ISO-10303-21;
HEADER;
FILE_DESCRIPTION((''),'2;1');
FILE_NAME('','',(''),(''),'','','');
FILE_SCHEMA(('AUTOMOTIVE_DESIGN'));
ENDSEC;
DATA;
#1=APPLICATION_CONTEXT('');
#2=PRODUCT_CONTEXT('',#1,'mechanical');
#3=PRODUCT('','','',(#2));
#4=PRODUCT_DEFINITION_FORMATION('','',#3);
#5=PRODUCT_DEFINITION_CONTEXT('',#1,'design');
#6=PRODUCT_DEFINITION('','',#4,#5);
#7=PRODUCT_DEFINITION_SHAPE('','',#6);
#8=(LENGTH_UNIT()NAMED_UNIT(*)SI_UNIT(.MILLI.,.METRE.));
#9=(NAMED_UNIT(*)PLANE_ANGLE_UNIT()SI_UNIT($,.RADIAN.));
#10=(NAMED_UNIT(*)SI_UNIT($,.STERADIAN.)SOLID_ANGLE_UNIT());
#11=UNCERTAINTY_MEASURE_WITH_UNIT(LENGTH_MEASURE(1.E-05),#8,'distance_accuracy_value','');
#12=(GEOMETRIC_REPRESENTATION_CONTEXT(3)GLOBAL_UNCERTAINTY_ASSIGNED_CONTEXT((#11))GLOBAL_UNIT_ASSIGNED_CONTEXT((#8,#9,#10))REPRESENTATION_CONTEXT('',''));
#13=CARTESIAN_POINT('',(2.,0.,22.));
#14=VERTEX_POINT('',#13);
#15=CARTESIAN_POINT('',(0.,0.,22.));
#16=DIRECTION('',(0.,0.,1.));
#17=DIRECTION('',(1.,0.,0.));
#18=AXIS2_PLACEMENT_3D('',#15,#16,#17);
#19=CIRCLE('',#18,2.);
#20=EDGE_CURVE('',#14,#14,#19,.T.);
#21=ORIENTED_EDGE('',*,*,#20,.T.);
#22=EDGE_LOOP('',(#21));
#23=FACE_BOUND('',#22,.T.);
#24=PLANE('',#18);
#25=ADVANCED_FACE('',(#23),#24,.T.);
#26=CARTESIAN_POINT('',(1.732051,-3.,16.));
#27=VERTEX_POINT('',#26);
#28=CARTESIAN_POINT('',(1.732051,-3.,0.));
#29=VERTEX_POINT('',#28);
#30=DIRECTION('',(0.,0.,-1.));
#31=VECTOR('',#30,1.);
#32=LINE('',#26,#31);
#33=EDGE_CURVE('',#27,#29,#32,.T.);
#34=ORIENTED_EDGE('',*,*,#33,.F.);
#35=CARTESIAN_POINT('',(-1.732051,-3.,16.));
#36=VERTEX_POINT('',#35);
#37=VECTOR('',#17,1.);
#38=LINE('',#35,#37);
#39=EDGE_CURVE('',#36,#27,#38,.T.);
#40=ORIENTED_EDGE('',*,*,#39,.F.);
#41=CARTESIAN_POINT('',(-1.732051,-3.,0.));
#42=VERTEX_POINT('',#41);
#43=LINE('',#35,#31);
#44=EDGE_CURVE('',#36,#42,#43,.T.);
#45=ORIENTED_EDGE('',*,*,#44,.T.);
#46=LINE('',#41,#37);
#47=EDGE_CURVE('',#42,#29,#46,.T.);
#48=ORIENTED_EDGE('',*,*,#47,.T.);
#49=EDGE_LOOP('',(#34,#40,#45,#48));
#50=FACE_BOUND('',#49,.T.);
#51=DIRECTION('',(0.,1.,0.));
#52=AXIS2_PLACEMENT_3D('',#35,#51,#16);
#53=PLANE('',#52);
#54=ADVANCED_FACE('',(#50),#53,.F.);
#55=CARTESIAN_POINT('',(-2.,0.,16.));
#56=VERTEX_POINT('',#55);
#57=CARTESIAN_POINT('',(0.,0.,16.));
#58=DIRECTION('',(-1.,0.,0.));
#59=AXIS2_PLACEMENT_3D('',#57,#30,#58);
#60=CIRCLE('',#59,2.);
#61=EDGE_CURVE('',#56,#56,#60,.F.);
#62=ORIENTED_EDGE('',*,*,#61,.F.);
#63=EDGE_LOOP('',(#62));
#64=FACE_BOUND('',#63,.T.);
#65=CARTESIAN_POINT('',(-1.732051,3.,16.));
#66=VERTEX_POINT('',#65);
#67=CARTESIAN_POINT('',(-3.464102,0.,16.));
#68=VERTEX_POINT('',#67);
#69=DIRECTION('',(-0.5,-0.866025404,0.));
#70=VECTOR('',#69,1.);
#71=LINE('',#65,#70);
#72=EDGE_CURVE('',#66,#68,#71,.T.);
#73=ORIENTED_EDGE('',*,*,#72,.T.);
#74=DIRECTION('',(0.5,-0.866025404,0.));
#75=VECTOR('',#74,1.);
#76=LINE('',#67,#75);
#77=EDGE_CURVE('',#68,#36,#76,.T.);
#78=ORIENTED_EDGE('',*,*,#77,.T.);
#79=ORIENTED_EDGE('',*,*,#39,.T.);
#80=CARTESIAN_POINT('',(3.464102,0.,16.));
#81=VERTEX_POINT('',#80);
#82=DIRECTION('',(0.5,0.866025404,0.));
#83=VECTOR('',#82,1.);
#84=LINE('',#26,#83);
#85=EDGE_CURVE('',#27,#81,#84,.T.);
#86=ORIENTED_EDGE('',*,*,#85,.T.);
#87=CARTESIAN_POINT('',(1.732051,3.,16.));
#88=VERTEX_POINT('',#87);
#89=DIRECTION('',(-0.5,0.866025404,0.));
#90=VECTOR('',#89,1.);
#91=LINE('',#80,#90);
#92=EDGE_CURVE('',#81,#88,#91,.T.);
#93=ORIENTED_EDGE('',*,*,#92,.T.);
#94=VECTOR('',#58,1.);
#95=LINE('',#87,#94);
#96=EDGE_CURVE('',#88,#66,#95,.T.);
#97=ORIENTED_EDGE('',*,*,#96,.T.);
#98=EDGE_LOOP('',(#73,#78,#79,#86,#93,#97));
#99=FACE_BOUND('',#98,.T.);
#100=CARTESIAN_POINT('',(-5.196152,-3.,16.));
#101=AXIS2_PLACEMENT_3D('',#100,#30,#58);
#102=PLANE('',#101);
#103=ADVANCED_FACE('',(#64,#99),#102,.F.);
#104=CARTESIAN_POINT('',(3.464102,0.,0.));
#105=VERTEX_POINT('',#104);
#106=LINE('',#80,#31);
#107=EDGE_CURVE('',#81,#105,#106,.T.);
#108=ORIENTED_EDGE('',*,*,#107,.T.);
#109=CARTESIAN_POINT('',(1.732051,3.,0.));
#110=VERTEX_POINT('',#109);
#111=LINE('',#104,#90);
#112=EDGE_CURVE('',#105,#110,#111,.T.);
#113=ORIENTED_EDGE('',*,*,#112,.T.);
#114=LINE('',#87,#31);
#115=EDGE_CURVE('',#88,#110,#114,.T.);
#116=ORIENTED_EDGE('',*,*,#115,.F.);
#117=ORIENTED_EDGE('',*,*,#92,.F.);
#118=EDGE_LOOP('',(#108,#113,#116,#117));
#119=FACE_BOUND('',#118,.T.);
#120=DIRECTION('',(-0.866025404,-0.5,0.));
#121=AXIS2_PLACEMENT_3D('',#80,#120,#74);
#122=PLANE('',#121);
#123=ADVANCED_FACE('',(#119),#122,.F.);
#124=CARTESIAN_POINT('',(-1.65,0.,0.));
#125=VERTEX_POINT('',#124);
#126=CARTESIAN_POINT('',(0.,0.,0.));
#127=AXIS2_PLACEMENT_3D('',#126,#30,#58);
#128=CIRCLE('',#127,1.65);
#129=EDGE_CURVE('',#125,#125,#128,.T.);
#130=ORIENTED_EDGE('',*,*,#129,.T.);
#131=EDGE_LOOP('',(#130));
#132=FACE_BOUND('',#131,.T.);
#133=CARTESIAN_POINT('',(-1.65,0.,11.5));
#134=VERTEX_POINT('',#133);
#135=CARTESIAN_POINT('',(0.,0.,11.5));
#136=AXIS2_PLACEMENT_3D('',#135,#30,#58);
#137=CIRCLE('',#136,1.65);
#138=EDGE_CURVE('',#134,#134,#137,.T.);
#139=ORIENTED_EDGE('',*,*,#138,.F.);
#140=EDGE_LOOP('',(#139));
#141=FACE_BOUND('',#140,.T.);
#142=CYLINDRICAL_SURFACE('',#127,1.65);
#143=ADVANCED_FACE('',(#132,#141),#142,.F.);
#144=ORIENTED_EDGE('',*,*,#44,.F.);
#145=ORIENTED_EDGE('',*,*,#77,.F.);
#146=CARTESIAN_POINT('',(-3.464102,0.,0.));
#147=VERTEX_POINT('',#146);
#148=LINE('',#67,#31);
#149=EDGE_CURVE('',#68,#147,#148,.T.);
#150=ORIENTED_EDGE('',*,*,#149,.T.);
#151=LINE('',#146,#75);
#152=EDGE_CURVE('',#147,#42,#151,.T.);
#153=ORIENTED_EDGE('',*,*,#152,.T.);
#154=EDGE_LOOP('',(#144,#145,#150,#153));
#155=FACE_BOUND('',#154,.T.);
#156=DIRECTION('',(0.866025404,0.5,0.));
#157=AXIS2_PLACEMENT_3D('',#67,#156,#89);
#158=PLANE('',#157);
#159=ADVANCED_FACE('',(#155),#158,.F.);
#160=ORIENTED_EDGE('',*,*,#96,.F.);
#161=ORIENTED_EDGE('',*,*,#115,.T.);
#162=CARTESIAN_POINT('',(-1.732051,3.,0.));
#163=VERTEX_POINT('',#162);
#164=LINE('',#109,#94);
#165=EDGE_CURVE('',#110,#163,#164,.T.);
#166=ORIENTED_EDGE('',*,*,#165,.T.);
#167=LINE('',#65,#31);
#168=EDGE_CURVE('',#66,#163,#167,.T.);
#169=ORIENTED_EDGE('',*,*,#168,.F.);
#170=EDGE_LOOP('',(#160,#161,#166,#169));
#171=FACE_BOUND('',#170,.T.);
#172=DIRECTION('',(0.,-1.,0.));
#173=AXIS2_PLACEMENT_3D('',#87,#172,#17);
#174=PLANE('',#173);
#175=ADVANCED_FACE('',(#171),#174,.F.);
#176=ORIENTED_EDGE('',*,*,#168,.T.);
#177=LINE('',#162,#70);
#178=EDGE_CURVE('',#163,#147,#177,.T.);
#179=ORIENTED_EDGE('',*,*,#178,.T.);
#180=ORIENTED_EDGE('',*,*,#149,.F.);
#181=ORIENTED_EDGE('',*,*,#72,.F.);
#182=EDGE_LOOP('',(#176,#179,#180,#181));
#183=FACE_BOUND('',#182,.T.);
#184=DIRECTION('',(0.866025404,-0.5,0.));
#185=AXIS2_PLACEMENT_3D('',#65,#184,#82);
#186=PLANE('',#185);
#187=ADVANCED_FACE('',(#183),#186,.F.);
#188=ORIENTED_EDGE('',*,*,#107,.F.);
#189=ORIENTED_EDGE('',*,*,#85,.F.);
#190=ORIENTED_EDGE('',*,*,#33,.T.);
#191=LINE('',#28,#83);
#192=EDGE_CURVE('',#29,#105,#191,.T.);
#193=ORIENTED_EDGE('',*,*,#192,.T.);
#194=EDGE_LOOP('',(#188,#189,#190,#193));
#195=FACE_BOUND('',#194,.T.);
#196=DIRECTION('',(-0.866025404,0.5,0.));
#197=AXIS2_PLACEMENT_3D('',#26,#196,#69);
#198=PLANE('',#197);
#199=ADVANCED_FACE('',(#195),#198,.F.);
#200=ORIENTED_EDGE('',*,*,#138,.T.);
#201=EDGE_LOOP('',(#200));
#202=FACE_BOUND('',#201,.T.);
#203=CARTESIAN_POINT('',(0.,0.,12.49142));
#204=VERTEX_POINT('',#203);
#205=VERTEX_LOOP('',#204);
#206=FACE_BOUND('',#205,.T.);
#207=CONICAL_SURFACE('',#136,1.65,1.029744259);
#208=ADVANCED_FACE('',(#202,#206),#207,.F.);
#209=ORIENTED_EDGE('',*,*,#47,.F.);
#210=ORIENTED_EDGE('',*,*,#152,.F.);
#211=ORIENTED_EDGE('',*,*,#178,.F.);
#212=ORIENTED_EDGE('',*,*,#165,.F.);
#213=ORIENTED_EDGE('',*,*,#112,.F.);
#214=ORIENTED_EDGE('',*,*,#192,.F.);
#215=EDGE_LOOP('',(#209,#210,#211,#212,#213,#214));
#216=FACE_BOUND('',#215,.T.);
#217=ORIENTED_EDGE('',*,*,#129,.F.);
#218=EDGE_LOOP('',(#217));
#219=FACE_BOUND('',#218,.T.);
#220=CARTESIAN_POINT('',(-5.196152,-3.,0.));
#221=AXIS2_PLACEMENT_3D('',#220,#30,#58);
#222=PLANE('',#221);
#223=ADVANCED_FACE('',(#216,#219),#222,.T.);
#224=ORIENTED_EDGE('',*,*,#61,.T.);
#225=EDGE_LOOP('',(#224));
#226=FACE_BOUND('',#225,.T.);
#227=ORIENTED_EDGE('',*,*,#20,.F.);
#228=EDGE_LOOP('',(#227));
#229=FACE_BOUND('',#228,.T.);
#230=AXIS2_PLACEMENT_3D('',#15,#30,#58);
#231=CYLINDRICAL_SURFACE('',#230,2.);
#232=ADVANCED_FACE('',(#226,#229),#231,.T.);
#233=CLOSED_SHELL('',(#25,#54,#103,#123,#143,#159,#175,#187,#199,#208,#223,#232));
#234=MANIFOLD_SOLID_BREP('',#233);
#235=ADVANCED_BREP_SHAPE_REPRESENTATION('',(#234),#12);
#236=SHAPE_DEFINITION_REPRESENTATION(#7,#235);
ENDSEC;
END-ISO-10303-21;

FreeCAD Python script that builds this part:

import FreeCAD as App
import Part
import Sketcher
from FreeCAD import Vector
Q = App.Units.Quantity


def add_polygon(sketch, points):
    """Adds a closed chain of lines whose ends are joined by coincident constraints."""
    first, n = sketch.GeometryCount, len(points)
    for a, b in zip(points, points[1:] + points[:1]):
        sketch.addGeometry(Part.LineSegment(App.Vector(*a, 0), App.Vector(*b, 0)), False)
    for i in range(n):
        sketch.addConstraint(Sketcher.Constraint("Coincident", first + i, 2, first + (i + 1) % n, 1))

doc = App.newDocument("Part")
body = doc.addObject("PartDesign::Body", "Body")

sketch1 = body.newObject("Sketcher::SketchObject", "Sketch")
sketch1.AttachmentSupport = (doc.getObject("XY_Plane"), [""])
sketch1.MapMode = "FlatFace"
add_polygon(sketch1, [(1.7, -3), (3.5, 0), (1.7, 3), (-1.7, 3), (-3.5, 0), (-1.7, -3)])
sketch1.addConstraint(Sketcher.Constraint("Horizontal", 2))
sketch1.addConstraint(Sketcher.Constraint("Horizontal", 5))
sketch1.addConstraint(Sketcher.Constraint("Symmetric", 0, 2, 3, 2, -1, 1))
sketch1.addConstraint(Sketcher.Constraint("Symmetric", 1, 2, 4, 2, -1, 1))
sketch1.addConstraint(Sketcher.Constraint("PointOnObject", 0, 2, -1))
sketch1.addConstraint(Sketcher.Constraint("Parallel", 0, 3))
sketch1.addConstraint(Sketcher.Constraint("Vertical", 2, 2, 4, 2))
sketch1.addConstraint(Sketcher.Constraint("Angle", 0, Q("60 deg")))
sketch1.addConstraint(Sketcher.Constraint("DistanceY", -1, 1, 1, 2, Q("3 mm")))
sketch1.addConstraint(Sketcher.Constraint("DistanceX", 2, 2, 2, 1, Q("3.464102 mm")))
pad1 = body.newObject("PartDesign::Pad", "Pad")
pad1.Profile = sketch1
pad1.Length = 16

sketch2 = body.newObject("Sketcher::SketchObject", "Sketch001")
sketch2.AttachmentSupport = (doc.getObject("XY_Plane"), [""])
sketch2.MapMode = "FlatFace"
sketch2.AttachmentOffset = App.Placement(Vector(0, 0, 16), App.Rotation())
sketch2.addGeometry(Part.Circle(Vector(0, 0, 0), Vector(0, 0, 1), 2), False)
sketch2.addConstraint(Sketcher.Constraint("Coincident", 0, 3, -1, 1))
sketch2.addConstraint(Sketcher.Constraint("Diameter", 0, Q("4 mm")))
pad2 = body.newObject("PartDesign::Pad", "Pad001")
pad2.Profile = sketch2
pad2.Length = 6

sketch3 = body.newObject("Sketcher::SketchObject", "Sketch002")
sketch3.AttachmentSupport = (doc.getObject("XY_Plane"), [""])
sketch3.MapMode = "FlatFace"
sketch3.addGeometry(Part.Circle(Vector(0, 0, 0), Vector(0, 0, 1), 1.6), False)
sketch3.addConstraint(Sketcher.Constraint("Coincident", 0, 3, -1, 1))
sketch3.addConstraint(Sketcher.Constraint("Diameter", 0, Q("3.3 mm")))
doc.recompute()
hole = body.newObject("PartDesign::Hole", "Hole")
hole.Profile = sketch3
hole.ThreadType = "None"
hole.Diameter = 3.3
hole.DepthType = "Dimension"
hole.Depth = 11.5
hole.DrillPoint = "Angled"
hole.DrillPointAngle = 118
hole.Reversed = True

doc.recompute()
